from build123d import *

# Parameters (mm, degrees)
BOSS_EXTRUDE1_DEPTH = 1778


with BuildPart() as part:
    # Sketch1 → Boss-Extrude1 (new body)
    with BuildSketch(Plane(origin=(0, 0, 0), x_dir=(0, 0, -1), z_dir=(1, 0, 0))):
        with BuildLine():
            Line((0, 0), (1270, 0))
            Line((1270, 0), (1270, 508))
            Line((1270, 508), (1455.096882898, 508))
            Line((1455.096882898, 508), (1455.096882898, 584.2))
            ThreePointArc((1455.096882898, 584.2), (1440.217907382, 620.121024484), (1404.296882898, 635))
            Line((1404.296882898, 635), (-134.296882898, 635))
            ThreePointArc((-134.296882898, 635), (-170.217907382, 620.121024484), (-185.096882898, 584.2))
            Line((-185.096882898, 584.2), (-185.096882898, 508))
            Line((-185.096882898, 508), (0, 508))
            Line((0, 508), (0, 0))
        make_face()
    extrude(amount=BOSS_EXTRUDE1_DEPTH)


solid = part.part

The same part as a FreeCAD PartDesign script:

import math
import FreeCAD as App
import Part
import Sketcher
from FreeCAD import Vector
Q = App.Units.Quantity

doc = App.newDocument("Part")
body = doc.addObject("PartDesign::Body", "Body")

sketch1 = body.newObject("Sketcher::SketchObject", "Sketch")
sketch1.AttachmentSupport = (doc.getObject("YZ_Plane"), [""])
sketch1.MapMode = "FlatFace"
sketch1.addGeometry(Part.LineSegment(Vector(0, 0, 0), Vector(0, -1270, 0)), False)
sketch1.addGeometry(Part.LineSegment(Vector(0, -1270, 0), Vector(508, -1270, 0)), False)
sketch1.addGeometry(Part.LineSegment(Vector(508, -1270, 0), Vector(508, -1455, 0)), False)
sketch1.addGeometry(Part.LineSegment(Vector(508, -1455, 0), Vector(584, -1455, 0)), False)
sketch1.addGeometry(Part.ArcOfCircle(Part.Circle(Vector(584, -1404, 0), Vector(0, 0, 1), 51), math.radians(-90), math.radians(0)), False)
sketch1.addGeometry(Part.LineSegment(Vector(635, -1404, 0), Vector(635, 134, 0)), False)
sketch1.addGeometry(Part.ArcOfCircle(Part.Circle(Vector(584, 134, 0), Vector(0, 0, 1), 51), math.radians(0), math.radians(90)), False)
sketch1.addGeometry(Part.LineSegment(Vector(584, 185, 0), Vector(508, 185, 0)), False)
sketch1.addGeometry(Part.LineSegment(Vector(508, 185, 0), Vector(508, 0, 0)), False)
sketch1.addGeometry(Part.LineSegment(Vector(508, 0, 0), Vector(0, 0, 0)), False)
sketch1.addConstraint(Sketcher.Constraint("Coincident", 0, 2, 1, 1))
sketch1.addConstraint(Sketcher.Constraint("Coincident", 1, 2, 2, 1))
sketch1.addConstraint(Sketcher.Constraint("Coincident", 2, 2, 3, 1))
sketch1.addConstraint(Sketcher.Constraint("Tangent", 3, 2, 4, 1))
sketch1.addConstraint(Sketcher.Constraint("Tangent", 4, 2, 5, 1))
sketch1.addConstraint(Sketcher.Constraint("Tangent", 5, 2, 6, 1))
sketch1.addConstraint(Sketcher.Constraint("Tangent", 6, 2, 7, 1))
sketch1.addConstraint(Sketcher.Constraint("Coincident", 7, 2, 8, 1))
sketch1.addConstraint(Sketcher.Constraint("Coincident", 8, 2, 9, 1))
sketch1.addConstraint(Sketcher.Constraint("Coincident", 9, 2, 0, 1))
sketch1.addConstraint(Sketcher.Constraint("Vertical", 0))
sketch1.addConstraint(Sketcher.Constraint("Horizontal", 1))
sketch1.addConstraint(Sketcher.Constraint("Vertical", 2))
sketch1.addConstraint(Sketcher.Constraint("Horizontal", 3))
sketch1.addConstraint(Sketcher.Constraint("Vertical", 5))
sketch1.addConstraint(Sketcher.Constraint("Horizontal", 7))
sketch1.addConstraint(Sketcher.Constraint("Vertical", 8))
sketch1.addConstraint(Sketcher.Constraint("Horizontal", 9))
sketch1.addConstraint(Sketcher.Constraint("Coincident", 9, 2, -1, 1))
sketch1.addConstraint(Sketcher.Constraint("Equal", 4, 6))
sketch1.addConstraint(Sketcher.Constraint("Vertical", 2, 2, 7, 2))
sketch1.addConstraint(Sketcher.Constraint("Equal", 2, 8))
sketch1.addConstraint(Sketcher.Constraint("Radius", 4, Q("2 in")))
sketch1.addConstraint(Sketcher.Constraint("DistanceX", 1, 1, 1, 2, Q("20 in")))
sketch1.addConstraint(Sketcher.Constraint("DistanceX", 3, 1, 3, 2, Q("3 in")))
sketch1.addConstraint(Sketcher.Constraint("DistanceY", 0, 2, 0, 1, Q("50 in")))
sketch1.addConstraint(Sketcher.Constraint("DistanceY", 2, 2, 2, 1, Q("185.096883 mm")))
pad1 = body.newObject("PartDesign::Pad", "Pad")
pad1.Profile = sketch1
pad1.Length = Q("70 in")

doc.recompute()
